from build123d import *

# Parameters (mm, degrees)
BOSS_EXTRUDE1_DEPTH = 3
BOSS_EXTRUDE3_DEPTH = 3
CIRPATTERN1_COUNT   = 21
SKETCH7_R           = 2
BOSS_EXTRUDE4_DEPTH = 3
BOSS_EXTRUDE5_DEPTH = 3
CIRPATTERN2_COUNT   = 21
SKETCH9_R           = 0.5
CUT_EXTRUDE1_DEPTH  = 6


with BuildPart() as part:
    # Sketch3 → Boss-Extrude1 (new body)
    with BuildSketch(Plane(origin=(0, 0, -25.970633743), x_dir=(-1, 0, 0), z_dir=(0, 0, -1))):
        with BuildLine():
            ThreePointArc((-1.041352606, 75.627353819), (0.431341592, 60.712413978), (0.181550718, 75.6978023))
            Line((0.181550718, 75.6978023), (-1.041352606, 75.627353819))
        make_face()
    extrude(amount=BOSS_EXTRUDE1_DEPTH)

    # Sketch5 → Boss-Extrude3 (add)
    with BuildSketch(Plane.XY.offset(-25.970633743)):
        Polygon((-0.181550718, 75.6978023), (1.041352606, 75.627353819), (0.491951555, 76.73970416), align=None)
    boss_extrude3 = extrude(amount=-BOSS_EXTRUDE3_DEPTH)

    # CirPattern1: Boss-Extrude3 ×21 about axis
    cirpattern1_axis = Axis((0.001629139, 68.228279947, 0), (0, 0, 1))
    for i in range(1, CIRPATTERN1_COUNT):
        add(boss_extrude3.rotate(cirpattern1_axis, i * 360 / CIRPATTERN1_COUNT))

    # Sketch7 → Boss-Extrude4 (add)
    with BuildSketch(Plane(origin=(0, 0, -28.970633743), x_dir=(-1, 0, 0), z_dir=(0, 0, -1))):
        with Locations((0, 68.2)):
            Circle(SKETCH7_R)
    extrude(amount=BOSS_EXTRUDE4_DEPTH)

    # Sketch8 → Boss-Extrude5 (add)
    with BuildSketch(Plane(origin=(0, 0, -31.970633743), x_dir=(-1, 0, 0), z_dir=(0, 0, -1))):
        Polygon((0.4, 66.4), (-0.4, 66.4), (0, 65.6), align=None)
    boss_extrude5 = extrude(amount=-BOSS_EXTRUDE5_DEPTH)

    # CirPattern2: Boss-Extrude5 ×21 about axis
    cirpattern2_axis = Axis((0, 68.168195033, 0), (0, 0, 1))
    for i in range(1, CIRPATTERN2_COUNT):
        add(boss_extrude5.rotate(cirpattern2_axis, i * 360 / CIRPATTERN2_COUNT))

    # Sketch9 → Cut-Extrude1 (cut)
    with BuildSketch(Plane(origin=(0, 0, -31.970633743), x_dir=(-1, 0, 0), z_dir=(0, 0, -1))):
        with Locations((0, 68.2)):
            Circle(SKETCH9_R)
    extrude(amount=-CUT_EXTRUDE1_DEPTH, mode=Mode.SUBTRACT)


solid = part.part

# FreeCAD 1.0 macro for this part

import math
import FreeCAD as App
import Part
import Sketcher
Q = App.Units.Quantity


def add_polygon(sketch, points):
    """Adds a closed chain of lines whose ends are joined by coincident constraints."""
    first, n = sketch.GeometryCount, len(points)
    for a, b in zip(points, points[1:] + points[:1]):
        sketch.addGeometry(Part.LineSegment(App.Vector(*a, 0), App.Vector(*b, 0)), False)
    for i in range(n):
        sketch.addConstraint(Sketcher.Constraint("Coincident", first + i, 2, first + (i + 1) % n, 1))

doc = App.newDocument("Part")
params = doc.addObject("Spreadsheet::Sheet", "Params")
for row, (alias, value) in enumerate([
    ("sketch1_radius", "7.5 mm"),
    ("pad1_length", "3 mm"),
    ("pad2_length", "3 mm"),
    ("sketch3_diameter", "4 mm"),
    ("pad3_length", "3 mm"),
    ("sketch4_width", "0.8 mm"),
    ("pad4_length", "3 mm"),
    ("sketch5_diameter", "1 mm"),
    ("pocket1_length", "6 mm"),
], start=1):
    params.set(f"A{row}", alias)
    params.set(f"B{row}", "=" + value)
    params.setAlias(f"B{row}", alias)

body = doc.addObject("PartDesign::Body", "Body")

# Sketch on XY plane
sketch1 = body.newObject("Sketcher::SketchObject", "Sketch")
sketch1.AttachmentSupport = (doc.getObject("XY_Plane"), [""])
sketch1.MapMode = "FlatFace"
sketch1.AttachmentOffset = App.Placement(App.Vector(0, 0, -25.970634), App.Rotation())
sketch1.addGeometry(Part.ArcOfCircle(Part.Circle(App.Vector(0, 68.2, 0), App.Vector(0, 0, 1), 7.5), math.radians(91), math.radians(442)), False)
sketch1.addGeometry(Part.LineSegment(App.Vector(-0.2, 75.7, 0), App.Vector(1, 75.6, 0)), False)
sketch1.addConstraint(Sketcher.Constraint("Coincident", 0, 1, 1, 1))
sketch1.addConstraint(Sketcher.Constraint("Coincident", 1, 2, 0, 2))
sketch1.addConstraint(Sketcher.Constraint("PointOnObject", 0, 3, -2))
sketch1.addConstraint(Sketcher.Constraint("Radius", 0, Q("7.5 mm")))
sketch1.addConstraint(Sketcher.Constraint("DistanceY", -1, 1, 0, 3, Q("68.2 mm")))
sketch1.addConstraint(Sketcher.Constraint("Distance", 1, Q("1.224931 mm")))
sketch1.addConstraint(Sketcher.Constraint("DistanceX", 0, 1, -1, 1, Q("0.181551 mm")))
sketch1.setExpression("Constraints[3]", "Params.sketch1_radius")
pad1 = body.newObject("PartDesign::Pad", "Pad")
pad1.Profile = sketch1
pad1.setExpression("Length", "Params.pad1_length")
pad1.Reversed = True

# Sketch on XY plane
sketch2 = body.newObject("Sketcher::SketchObject", "Sketch001")
sketch2.AttachmentSupport = (doc.getObject("XY_Plane"), [""])
sketch2.MapMode = "FlatFace"
sketch2.AttachmentOffset = App.Placement(App.Vector(0, 0, -25.970634), App.Rotation())
add_polygon(sketch2, [(-0.2, 75.7), (1, 75.6), (0.5, 76.7)])  # lines 0-2
sketch2.addConstraint(Sketcher.Constraint("Equal", 1, 2))
sketch2.addConstraint(Sketcher.Constraint("DistanceX", 1, 2, 0, 2, Q("0.549401 mm")))
sketch2.addConstraint(Sketcher.Constraint("DistanceY", 2, 2, 1, 2, Q("1.041902 mm")))
sketch2.addConstraint(Sketcher.Constraint("Distance", 0, Q("1.224931 mm")))
sketch2.addConstraint(Sketcher.Constraint("DistanceX", -1, 1, 1, 2, Q("0.491952 mm")))
sketch2.addConstraint(Sketcher.Constraint("DistanceY", -1, 1, 0, 2, Q("75.627354 mm")))
pad2 = body.newObject("PartDesign::Pad", "Pad001")
pad2.Profile = sketch2
pad2.setExpression("Length", "Params.pad2_length")
pad2.Reversed = True
doc.recompute()

datumline = body.newObject("PartDesign::Line", "DatumLine")
datumline.Placement = App.Placement(App.Vector(0.001629, 68.22828, 0), App.Rotation(App.Vector(0, 0, 1), App.Vector(0, 0, 1)))
polarpattern = body.newObject("PartDesign::PolarPattern", "PolarPattern")
polarpattern.Originals = [pad2]
polarpattern.Axis = (datumline, [""])
polarpattern.Angle = 360
polarpattern.Occurrences = 21
body.Tip = polarpattern

# Sketch on XY plane
sketch3 = body.newObject("Sketcher::SketchObject", "Sketch002")
sketch3.AttachmentSupport = (doc.getObject("XY_Plane"), [""])
sketch3.MapMode = "FlatFace"
sketch3.AttachmentOffset = App.Placement(App.Vector(0, 0, -28.970634), App.Rotation())
sketch3.addGeometry(Part.Circle(App.Vector(0, 68.2, 0), App.Vector(0, 0, 1), 2), False)
sketch3.addConstraint(Sketcher.Constraint("PointOnObject", 0, 3, -2))
sketch3.addConstraint(Sketcher.Constraint("Diameter", 0, Q("4 mm")))
sketch3.addConstraint(Sketcher.Constraint("DistanceY", -1, 1, 0, 3, Q("68.2 mm")))
sketch3.setExpression("Constraints[1]", "Params.sketch3_diameter")
pad3 = body.newObject("PartDesign::Pad", "Pad002")
pad3.Profile = sketch3
pad3.setExpression("Length", "Params.pad3_length")
pad3.Reversed = True

# Sketch on XY plane
sketch4 = body.newObject("Sketcher::SketchObject", "Sketch003")
sketch4.AttachmentSupport = (doc.getObject("XY_Plane"), [""])
sketch4.MapMode = "FlatFace"
sketch4.AttachmentOffset = App.Placement(App.Vector(0, 0, -31.970634), App.Rotation())
add_polygon(sketch4, [(-0.4, 66.4), (0.4, 66.4), (0, 65.6)])  # lines 0-2
sketch4.addConstraint(Sketcher.Constraint("Horizontal", 0))
sketch4.addConstraint(Sketcher.Constraint("PointOnObject", 1, 2, -2))
sketch4.addConstraint(Sketcher.Constraint("Equal", 1, 2))
sketch4.addConstraint(Sketcher.Constraint("DistanceX", 0, 1, 0, 2, Q("0.8 mm")))
sketch4.addConstraint(Sketcher.Constraint("DistanceY", -1, 1, 0, 2, Q("66.4 mm")))
sketch4.addConstraint(Sketcher.Constraint("DistanceY", -1, 1, 1, 2, Q("65.6 mm")))
sketch4.setExpression("Constraints[6]", "Params.sketch4_width")
pad4 = body.newObject("PartDesign::Pad", "Pad003")
pad4.Profile = sketch4
pad4.setExpression("Length", "Params.pad4_length")
doc.recompute()

datumline2 = body.newObject("PartDesign::Line", "DatumLine001")
datumline2.Placement = App.Placement(App.Vector(0, 68.168195, 0), App.Rotation(App.Vector(0, 0, 1), App.Vector(0, 0, 1)))
polarpattern2 = body.newObject("PartDesign::PolarPattern", "PolarPattern001")
polarpattern2.Originals = [pad4]
polarpattern2.Axis = (datumline2, [""])
polarpattern2.Angle = 360
polarpattern2.Occurrences = 21
body.Tip = polarpattern2

# Sketch on XY plane
sketch5 = body.newObject("Sketcher::SketchObject", "Sketch004")
sketch5.AttachmentSupport = (doc.getObject("XY_Plane"), [""])
sketch5.MapMode = "FlatFace"
sketch5.AttachmentOffset = App.Placement(App.Vector(0, 0, -31.970634), App.Rotation())
sketch5.addGeometry(Part.Circle(App.Vector(0, 68.2, 0), App.Vector(0, 0, 1), 0.5), False)
sketch5.addConstraint(Sketcher.Constraint("PointOnObject", 0, 3, -2))
sketch5.addConstraint(Sketcher.Constraint("Diameter", 0, Q("1 mm")))
sketch5.addConstraint(Sketcher.Constraint("DistanceY", -1, 1, 0, 3, Q("68.2 mm")))
sketch5.setExpression("Constraints[1]", "Params.sketch5_diameter")
pocket1 = body.newObject("PartDesign::Pocket", "Pocket")
pocket1.Profile = sketch5
pocket1.setExpression("Length", "Params.pocket1_length")
pocket1.Reversed = True

doc.recompute()
